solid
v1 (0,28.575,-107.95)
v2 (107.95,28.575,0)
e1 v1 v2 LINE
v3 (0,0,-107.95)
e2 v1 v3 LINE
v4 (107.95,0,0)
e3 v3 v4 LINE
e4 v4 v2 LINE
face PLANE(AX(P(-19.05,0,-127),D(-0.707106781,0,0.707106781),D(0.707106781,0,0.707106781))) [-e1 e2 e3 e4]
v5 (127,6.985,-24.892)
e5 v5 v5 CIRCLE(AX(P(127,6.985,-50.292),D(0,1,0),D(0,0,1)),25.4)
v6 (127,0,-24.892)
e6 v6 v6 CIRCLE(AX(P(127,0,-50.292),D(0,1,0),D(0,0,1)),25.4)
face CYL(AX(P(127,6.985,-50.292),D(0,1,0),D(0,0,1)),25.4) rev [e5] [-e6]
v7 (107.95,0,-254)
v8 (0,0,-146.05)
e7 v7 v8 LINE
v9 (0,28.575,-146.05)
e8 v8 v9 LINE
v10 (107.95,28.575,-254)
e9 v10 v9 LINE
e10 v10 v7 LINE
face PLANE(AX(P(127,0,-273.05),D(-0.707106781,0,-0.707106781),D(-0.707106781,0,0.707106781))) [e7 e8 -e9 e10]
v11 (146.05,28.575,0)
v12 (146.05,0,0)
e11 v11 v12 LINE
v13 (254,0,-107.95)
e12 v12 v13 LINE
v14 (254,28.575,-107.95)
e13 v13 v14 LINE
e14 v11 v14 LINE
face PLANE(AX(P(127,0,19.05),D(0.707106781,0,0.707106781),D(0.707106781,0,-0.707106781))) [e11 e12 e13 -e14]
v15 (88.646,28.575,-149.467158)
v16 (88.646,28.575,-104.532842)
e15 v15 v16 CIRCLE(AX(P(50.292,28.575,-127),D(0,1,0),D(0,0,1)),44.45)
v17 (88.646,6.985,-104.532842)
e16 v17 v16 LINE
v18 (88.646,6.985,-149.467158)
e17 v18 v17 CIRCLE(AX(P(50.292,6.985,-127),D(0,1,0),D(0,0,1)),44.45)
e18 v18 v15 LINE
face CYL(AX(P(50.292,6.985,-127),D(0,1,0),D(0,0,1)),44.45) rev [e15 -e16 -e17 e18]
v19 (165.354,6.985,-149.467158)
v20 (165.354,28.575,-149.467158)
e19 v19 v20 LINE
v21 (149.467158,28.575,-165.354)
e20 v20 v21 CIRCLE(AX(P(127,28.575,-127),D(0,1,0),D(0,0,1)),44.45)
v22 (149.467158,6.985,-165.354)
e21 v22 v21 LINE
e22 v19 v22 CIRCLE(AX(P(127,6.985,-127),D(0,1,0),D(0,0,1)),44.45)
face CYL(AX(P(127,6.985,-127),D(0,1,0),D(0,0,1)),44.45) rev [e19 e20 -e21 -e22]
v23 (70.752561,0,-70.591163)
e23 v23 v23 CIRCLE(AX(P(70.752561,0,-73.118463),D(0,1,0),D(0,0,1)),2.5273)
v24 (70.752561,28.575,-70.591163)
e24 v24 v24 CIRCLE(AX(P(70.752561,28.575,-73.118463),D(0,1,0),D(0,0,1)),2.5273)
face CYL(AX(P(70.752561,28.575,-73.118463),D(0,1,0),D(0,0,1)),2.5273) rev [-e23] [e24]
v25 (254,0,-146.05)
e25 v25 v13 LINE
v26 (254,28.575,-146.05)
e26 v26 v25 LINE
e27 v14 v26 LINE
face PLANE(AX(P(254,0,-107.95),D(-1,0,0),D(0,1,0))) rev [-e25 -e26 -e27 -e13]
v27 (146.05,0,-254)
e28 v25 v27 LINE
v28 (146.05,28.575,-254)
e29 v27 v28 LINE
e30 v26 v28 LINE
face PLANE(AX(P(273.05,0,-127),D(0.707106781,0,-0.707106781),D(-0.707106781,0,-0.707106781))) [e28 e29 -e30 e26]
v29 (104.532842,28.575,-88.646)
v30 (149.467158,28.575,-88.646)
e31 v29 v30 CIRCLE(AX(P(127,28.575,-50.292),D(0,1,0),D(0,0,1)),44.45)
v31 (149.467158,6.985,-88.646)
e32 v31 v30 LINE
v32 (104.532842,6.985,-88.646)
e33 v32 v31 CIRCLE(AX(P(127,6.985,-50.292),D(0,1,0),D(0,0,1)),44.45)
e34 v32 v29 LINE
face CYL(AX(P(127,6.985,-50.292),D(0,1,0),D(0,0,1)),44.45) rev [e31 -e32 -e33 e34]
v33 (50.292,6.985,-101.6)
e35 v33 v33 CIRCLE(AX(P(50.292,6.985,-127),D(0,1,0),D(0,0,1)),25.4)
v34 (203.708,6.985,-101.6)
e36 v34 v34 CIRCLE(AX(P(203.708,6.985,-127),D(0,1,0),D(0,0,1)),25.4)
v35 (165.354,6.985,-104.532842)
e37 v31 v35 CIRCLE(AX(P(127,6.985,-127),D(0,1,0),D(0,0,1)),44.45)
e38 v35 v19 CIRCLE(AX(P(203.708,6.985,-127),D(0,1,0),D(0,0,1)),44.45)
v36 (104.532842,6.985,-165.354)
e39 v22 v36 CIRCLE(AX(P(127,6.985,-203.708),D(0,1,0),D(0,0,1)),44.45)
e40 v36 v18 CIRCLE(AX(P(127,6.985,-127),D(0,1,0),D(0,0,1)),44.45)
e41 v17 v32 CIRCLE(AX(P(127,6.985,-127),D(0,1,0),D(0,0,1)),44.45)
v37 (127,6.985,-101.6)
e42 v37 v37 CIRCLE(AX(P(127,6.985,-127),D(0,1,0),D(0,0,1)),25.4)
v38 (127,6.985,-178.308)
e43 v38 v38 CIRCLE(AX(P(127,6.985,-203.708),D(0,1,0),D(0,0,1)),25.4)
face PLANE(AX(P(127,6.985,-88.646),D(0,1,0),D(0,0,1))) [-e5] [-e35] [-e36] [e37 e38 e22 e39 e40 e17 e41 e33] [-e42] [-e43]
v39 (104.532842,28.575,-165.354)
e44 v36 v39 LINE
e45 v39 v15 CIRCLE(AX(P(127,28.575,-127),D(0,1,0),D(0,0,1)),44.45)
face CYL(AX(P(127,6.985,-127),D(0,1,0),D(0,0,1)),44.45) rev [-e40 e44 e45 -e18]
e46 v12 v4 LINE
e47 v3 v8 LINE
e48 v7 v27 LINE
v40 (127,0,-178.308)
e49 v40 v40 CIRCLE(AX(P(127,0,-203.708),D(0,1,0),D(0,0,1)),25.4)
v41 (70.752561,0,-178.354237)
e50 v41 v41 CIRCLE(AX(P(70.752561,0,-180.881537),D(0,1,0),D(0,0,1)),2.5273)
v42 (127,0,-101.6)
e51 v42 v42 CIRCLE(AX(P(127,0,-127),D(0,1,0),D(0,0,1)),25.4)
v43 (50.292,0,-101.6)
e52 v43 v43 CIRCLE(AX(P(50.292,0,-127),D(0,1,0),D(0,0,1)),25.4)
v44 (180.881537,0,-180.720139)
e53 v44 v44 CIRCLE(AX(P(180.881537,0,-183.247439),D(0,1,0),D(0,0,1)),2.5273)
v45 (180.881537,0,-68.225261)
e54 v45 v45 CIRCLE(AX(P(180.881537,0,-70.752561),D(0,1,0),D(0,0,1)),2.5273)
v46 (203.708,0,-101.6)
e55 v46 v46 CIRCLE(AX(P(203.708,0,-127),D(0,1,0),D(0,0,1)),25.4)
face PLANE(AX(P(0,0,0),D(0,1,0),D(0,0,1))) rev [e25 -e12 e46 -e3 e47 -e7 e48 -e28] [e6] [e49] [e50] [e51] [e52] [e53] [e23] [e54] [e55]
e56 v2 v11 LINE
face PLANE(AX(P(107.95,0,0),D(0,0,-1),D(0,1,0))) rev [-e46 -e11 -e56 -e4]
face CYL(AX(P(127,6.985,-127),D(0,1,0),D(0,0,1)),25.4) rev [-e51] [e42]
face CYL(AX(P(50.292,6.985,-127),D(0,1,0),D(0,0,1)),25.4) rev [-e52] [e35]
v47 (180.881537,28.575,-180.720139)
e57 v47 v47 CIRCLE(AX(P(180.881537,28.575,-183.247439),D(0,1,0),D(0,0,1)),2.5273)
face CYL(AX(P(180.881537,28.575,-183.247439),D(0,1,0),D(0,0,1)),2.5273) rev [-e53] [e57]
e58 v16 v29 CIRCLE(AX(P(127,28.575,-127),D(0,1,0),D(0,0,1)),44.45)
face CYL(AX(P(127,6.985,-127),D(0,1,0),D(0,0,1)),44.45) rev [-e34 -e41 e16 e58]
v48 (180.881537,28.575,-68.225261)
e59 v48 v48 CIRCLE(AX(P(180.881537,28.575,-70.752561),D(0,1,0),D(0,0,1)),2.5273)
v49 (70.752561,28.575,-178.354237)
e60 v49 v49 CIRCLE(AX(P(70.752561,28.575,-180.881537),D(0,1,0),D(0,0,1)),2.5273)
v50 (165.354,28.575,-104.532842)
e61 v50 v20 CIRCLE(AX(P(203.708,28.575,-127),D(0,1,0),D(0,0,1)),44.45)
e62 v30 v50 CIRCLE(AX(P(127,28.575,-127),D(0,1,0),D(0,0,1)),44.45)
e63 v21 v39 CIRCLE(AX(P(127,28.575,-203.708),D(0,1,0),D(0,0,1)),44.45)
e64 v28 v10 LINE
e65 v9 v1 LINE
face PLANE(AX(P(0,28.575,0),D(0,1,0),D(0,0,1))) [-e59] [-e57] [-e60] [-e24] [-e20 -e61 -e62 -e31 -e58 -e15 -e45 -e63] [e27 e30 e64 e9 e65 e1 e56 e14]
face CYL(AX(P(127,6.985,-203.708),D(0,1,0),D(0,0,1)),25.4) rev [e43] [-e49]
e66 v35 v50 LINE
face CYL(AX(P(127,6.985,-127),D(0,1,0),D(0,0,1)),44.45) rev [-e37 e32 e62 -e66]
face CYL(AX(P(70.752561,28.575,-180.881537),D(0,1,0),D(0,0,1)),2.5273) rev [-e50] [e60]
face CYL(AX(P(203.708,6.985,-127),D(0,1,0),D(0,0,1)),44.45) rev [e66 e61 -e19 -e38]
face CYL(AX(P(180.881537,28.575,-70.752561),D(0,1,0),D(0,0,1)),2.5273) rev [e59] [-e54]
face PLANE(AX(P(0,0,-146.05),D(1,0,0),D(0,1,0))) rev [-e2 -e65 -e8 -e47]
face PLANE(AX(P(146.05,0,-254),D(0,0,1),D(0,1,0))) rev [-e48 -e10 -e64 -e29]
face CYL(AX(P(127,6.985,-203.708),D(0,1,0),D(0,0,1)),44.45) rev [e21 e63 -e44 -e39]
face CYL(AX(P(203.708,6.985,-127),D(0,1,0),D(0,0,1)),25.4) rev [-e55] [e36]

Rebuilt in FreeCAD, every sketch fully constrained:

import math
import FreeCAD as App
import Part
import Sketcher
Q = App.Units.Quantity


def edges_at(feature, points):
    """Names of the edges that pass closest to the given points."""
    edges = feature.Shape.Edges
    near = lambda p: min(range(len(edges)), key=lambda i: edges[i].distToShape(Part.Vertex(*p))[0])
    return sorted({f"Edge{near(p) + 1}" for p in points})

doc = App.newDocument("Part")
body = doc.addObject("PartDesign::Body", "Body")

# Sketch on XZ plane
sketch1 = body.newObject("Sketcher::SketchObject", "Sketch")
sketch1.AttachmentSupport = (doc.getObject("XZ_Plane"), [""])
sketch1.MapMode = "FlatFace"
sketch1.AttachmentOffset = App.Placement(App.Vector(0, 0, -1.125 * 25.4), App.Rotation())
sketch1.addGeometry([
    Part.LineSegment(App.Vector(127, -273, 0), App.Vector(-19, -127, 0)),
    Part.LineSegment(App.Vector(-19, -127, 0), App.Vector(127, 19, 0)),
    Part.LineSegment(App.Vector(127, 19, 0), App.Vector(273, -127, 0)),
    Part.LineSegment(App.Vector(273, -127, 0), App.Vector(127, -273, 0)),
], False)
sketch1.addConstraint([
    Sketcher.Constraint("Coincident", 0, 2, 1, 1),
    Sketcher.Constraint("Coincident", 1, 2, 2, 1),
    Sketcher.Constraint("Coincident", 2, 2, 3, 1),
    Sketcher.Constraint("Coincident", 3, 2, 0, 1),
    Sketcher.Constraint("Perpendicular", 0, 1),
    Sketcher.Constraint("Perpendicular", 1, 2),
    Sketcher.Constraint("Perpendicular", 2, 3),
    Sketcher.Constraint("Horizontal", 0, 2, 2, 2),
    Sketcher.Constraint("Vertical", 1, 2, 3, 2),
    Sketcher.Constraint("DistanceY", 0, 2, -1, 1, Q("5 in")),
    Sketcher.Constraint("DistanceX", -1, 1, 1, 2, Q("5 in")),
    Sketcher.Constraint("DistanceX", 0, 2, 2, 2, Q("11.5 in")),
])
pad1 = body.newObject("PartDesign::Pad", "Pad")
pad1.Profile = sketch1
pad1.Length = Q("1.125 in")

# Sketch on XZ plane
sketch2 = body.newObject("Sketcher::SketchObject", "Sketch001")
sketch2.AttachmentSupport = (doc.getObject("XZ_Plane"), [""])
sketch2.MapMode = "FlatFace"
sketch2.AttachmentOffset = App.Placement(App.Vector(0, 0, -1.125 * 25.4), App.Rotation())
sketch2.addGeometry([
    Part.ArcOfCircle(Part.Circle(App.Vector(127, -127, 0), App.Vector(0, 0, 1), 44), math.radians(30), math.radians(60)),  # 0
    Part.ArcOfCircle(Part.Circle(App.Vector(204, -127, 0), App.Vector(0, 0, 1), 44), math.radians(-150), math.radians(150)),  # 1
    Part.ArcOfCircle(Part.Circle(App.Vector(127, -127, 0), App.Vector(0, 0, 1), 44), math.radians(-60), math.radians(-30)),  # 2
    Part.ArcOfCircle(Part.Circle(App.Vector(127, -204, 0), App.Vector(0, 0, 1), 44), math.radians(120), math.radians(420)),  # 3
    Part.ArcOfCircle(Part.Circle(App.Vector(127, -127, 0), App.Vector(0, 0, 1), 44), math.radians(-150), math.radians(-120)),  # 4
    Part.ArcOfCircle(Part.Circle(App.Vector(50, -127, 0), App.Vector(0, 0, 1), 44), math.radians(30), math.radians(330)),  # 5
    Part.ArcOfCircle(Part.Circle(App.Vector(127, -127, 0), App.Vector(0, 0, 1), 44), math.radians(120), math.radians(150)),  # 6
    Part.ArcOfCircle(Part.Circle(App.Vector(127, -50, 0), App.Vector(0, 0, 1), 44), math.radians(-60), math.radians(240)),  # 7
], False)
sketch2.addConstraint([
    Sketcher.Constraint("Coincident", 0, 1, 1, 2),
    Sketcher.Constraint("Coincident", 1, 1, 2, 2),
    Sketcher.Constraint("Coincident", 2, 1, 3, 2),
    Sketcher.Constraint("Coincident", 3, 1, 4, 2),
    Sketcher.Constraint("Coincident", 4, 1, 5, 2),
    Sketcher.Constraint("Coincident", 5, 1, 6, 2),
    Sketcher.Constraint("Coincident", 6, 1, 7, 2),
    Sketcher.Constraint("Coincident", 7, 1, 0, 2),
    Sketcher.Constraint("Coincident", 2, 3, 0, 3),
    Sketcher.Constraint("Coincident", 4, 3, 0, 3),
    Sketcher.Constraint("Coincident", 6, 3, 0, 3),
    Sketcher.Constraint("Equal", 0, 1),
    Sketcher.Constraint("Equal", 1, 2),
    Sketcher.Constraint("Equal", 2, 3),
    Sketcher.Constraint("Equal", 3, 4),
    Sketcher.Constraint("Equal", 4, 5),
    Sketcher.Constraint("Equal", 5, 6),
    Sketcher.Constraint("Equal", 6, 7),
    Sketcher.Constraint("Horizontal", 0, 3, 1, 3),
    Sketcher.Constraint("Horizontal", 4, 3, 5, 3),
    Sketcher.Constraint("Horizontal", 2, 1, 3, 1),
    Sketcher.Constraint("Horizontal", 1, 1, 4, 1),
    Sketcher.Constraint("Horizontal", 6, 1, 7, 1),
    Sketcher.Constraint("Vertical", 3, 1, 6, 1),
    Sketcher.Constraint("Radius", 0, Q("1.75 in")),
    Sketcher.Constraint("DistanceX", -1, 1, 0, 3, Q("5 in")),
    Sketcher.Constraint("DistanceY", 0, 3, -1, 1, Q("5 in")),
    Sketcher.Constraint("DistanceX", -1, 1, 1, 3, Q("8.02 in")),
    Sketcher.Constraint("DistanceY", 3, 3, -1, 1, Q("8.02 in")),
])
pocket1 = body.newObject("PartDesign::Pocket", "Pocket")
pocket1.Profile = sketch2
pocket1.Length = Q("0.85 in")
pocket1.Reversed = True

# Sketch on XZ plane
sketch3 = body.newObject("Sketcher::SketchObject", "Sketch002")
sketch3.AttachmentSupport = (doc.getObject("XZ_Plane"), [""])
sketch3.MapMode = "FlatFace"
sketch3.AttachmentOffset = App.Placement(App.Vector(0, 0, -1.125 * 25.4), App.Rotation())
sketch3.addGeometry([
    Part.Circle(App.Vector(180.9, -183.2, 0), App.Vector(0, 0, 1), 2.5),
    Part.Circle(App.Vector(180.9, -70.8, 0), App.Vector(0, 0, 1), 2.5),
    Part.Circle(App.Vector(70.8, -73.1, 0), App.Vector(0, 0, 1), 2.5),
    Part.Circle(App.Vector(70.8, -180.9, 0), App.Vector(0, 0, 1), 2.5),
], False)
sketch3.addConstraint([
    Sketcher.Constraint("Equal", 0, 1),
    Sketcher.Constraint("Equal", 1, 2),
    Sketcher.Constraint("Equal", 2, 3),
    Sketcher.Constraint("Vertical", 0, 3, 1, 3),
    Sketcher.Constraint("Vertical", 2, 3, 3, 3),
    Sketcher.Constraint("Diameter", 0, Q("0.199 in")),
    Sketcher.Constraint("DistanceY", 0, 3, -1, 1, 183.247439),
    Sketcher.Constraint("DistanceY", 1, 3, -1, 1, 70.752561),
    Sketcher.Constraint("DistanceX", -1, 1, 2, 3, 70.752561),
    Sketcher.Constraint("DistanceX", -1, 1, 0, 3, 180.881537),
    Sketcher.Constraint("DistanceY", 2, 3, -1, 1, 73.118463),
    Sketcher.Constraint("DistanceY", 3, 3, -1, 1, 180.881537),
])
doc.recompute()
hole = body.newObject("PartDesign::Hole", "Hole")
hole.Profile = sketch3
hole.ThreadType = "None"
hole.Diameter = Q("0.199 in")
hole.DepthType = "ThroughAll"
hole.Reversed = True

# Sketch on XZ plane
sketch4 = body.newObject("Sketcher::SketchObject", "Sketch003")
sketch4.AttachmentSupport = (doc.getObject("XZ_Plane"), [""])
sketch4.MapMode = "FlatFace"
sketch4.AttachmentOffset = App.Placement(App.Vector(0, 0, -0.275 * 25.4), App.Rotation())
sketch4.addGeometry([
    Part.Circle(App.Vector(127, -127, 0), App.Vector(0, 0, 1), 25),  # 0
    Part.Circle(App.Vector(127, -204, 0), App.Vector(0, 0, 1), 25),  # 1
    Part.Circle(App.Vector(50, -127, 0), App.Vector(0, 0, 1), 25),  # 2
    Part.Circle(App.Vector(127, -50, 0), App.Vector(0, 0, 1), 25),  # 3
    Part.Circle(App.Vector(204, -127, 0), App.Vector(0, 0, 1), 25),  # 4
], False)
sketch4.addConstraint([
    Sketcher.Constraint("Equal", 0, 1),
    Sketcher.Constraint("Equal", 1, 2),
    Sketcher.Constraint("Equal", 2, 3),
    Sketcher.Constraint("Equal", 3, 4),
    Sketcher.Constraint("Horizontal", 0, 3, 2, 3),
    Sketcher.Constraint("Horizontal", 2, 3, 4, 3),
    Sketcher.Constraint("Vertical", 0, 3, 1, 3),
    Sketcher.Constraint("Vertical", 1, 3, 3, 3),
    Sketcher.Constraint("Diameter", 0, Q("2 in")),
    Sketcher.Constraint("DistanceX", -1, 1, 0, 3, Q("5 in")),
    Sketcher.Constraint("DistanceY", 0, 3, -1, 1, Q("5 in")),
    Sketcher.Constraint("DistanceY", 1, 3, -1, 1, Q("8.02 in")),
    Sketcher.Constraint("DistanceX", -1, 1, 2, 3, Q("1.98 in")),
    Sketcher.Constraint("DistanceY", 3, 3, -1, 1, Q("1.98 in")),
    Sketcher.Constraint("DistanceX", -1, 1, 4, 3, Q("8.02 in")),
])
doc.recompute()
hole2 = body.newObject("PartDesign::Hole", "Hole001")
hole2.Profile = sketch4
hole2.ThreadType = "None"
hole2.Diameter = Q("2 in")
hole2.DepthType = "ThroughAll"
hole2.Reversed = True
doc.recompute()

chamfer = body.newObject("PartDesign::Chamfer", "Chamfer")
chamfer.Base = (hole2, edges_at(hole2, [
    (273.05, 14.287, -127),
    (127, 14.287, 19.05),
    (-19.05, 14.287, -127),
    (127, 14.287, -273.05),
]))
chamfer.Size = 26.940768

doc.recompute()
